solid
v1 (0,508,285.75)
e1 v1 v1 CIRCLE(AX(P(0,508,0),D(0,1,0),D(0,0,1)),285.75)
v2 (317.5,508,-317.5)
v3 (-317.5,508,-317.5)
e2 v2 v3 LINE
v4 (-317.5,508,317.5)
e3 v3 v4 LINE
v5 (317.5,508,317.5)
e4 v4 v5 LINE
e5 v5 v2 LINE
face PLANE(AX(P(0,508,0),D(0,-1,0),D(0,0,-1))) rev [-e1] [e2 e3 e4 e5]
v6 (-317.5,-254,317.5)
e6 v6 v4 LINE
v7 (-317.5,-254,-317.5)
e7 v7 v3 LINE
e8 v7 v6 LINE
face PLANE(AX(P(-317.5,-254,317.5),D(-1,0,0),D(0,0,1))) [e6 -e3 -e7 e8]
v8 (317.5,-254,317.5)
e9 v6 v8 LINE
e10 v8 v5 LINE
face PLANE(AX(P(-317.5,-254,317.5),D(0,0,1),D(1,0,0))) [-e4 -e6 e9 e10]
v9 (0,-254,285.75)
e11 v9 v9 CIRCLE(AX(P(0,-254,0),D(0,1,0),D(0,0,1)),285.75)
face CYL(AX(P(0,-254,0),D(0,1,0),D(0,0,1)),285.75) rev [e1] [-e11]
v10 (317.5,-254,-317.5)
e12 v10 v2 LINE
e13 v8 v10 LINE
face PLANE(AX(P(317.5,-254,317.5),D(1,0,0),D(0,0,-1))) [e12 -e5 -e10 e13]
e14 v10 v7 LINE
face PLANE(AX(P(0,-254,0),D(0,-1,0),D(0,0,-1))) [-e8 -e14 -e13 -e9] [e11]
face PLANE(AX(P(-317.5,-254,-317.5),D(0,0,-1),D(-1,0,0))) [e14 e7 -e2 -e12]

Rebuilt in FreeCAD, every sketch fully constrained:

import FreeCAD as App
import Part
import Sketcher
Q = App.Units.Quantity


def add_polygon(sketch, points):
    """Adds a closed chain of lines whose ends are joined by coincident constraints."""
    first, n = sketch.GeometryCount, len(points)
    for a, b in zip(points, points[1:] + points[:1]):
        sketch.addGeometry(Part.LineSegment(App.Vector(*a, 0), App.Vector(*b, 0)), False)
    for i in range(n):
        sketch.addConstraint(Sketcher.Constraint("Coincident", first + i, 2, first + (i + 1) % n, 1))

doc = App.newDocument("Part")
body = doc.addObject("PartDesign::Body", "Body")

# Sketch on XZ plane
sketch1 = body.newObject("Sketcher::SketchObject", "Sketch")
sketch1.AttachmentSupport = (doc.getObject("XZ_Plane"), [""])
sketch1.MapMode = "FlatFace"
add_polygon(sketch1, [(-317.5, -317.5), (-317.5, 317.5), (317.5, 317.5), (317.5, -317.5)])  # lines 0-3
sketch1.addGeometry(Part.Circle(App.Vector(0, 0, 0), App.Vector(0, 0, 1), 285.75), False)  # 4
sketch1.addConstraint([
    Sketcher.Constraint("Vertical", 0),
    Sketcher.Constraint("Horizontal", 1),
    Sketcher.Constraint("Vertical", 2),
    Sketcher.Constraint("Horizontal", 3),
    Sketcher.Constraint("Coincident", 4, 3, -1, 1),
    Sketcher.Constraint("Symmetric", 0, 2, 2, 2, -1, 1),
    Sketcher.Constraint("Equal", 3, 0),
    Sketcher.Constraint("Diameter", 4, Q("22.5 in")),
    Sketcher.Constraint("DistanceX", 1, 1, 1, 2, Q("25 in")),
])
pad1 = body.newObject("PartDesign::Pad", "Pad")
pad1.Profile = sketch1
pad1.Type = "TwoLengths"
pad1.Length = Q("20 in")
pad1.Length2 = Q("10 in")
pad1.Reversed = True

doc.recompute()
